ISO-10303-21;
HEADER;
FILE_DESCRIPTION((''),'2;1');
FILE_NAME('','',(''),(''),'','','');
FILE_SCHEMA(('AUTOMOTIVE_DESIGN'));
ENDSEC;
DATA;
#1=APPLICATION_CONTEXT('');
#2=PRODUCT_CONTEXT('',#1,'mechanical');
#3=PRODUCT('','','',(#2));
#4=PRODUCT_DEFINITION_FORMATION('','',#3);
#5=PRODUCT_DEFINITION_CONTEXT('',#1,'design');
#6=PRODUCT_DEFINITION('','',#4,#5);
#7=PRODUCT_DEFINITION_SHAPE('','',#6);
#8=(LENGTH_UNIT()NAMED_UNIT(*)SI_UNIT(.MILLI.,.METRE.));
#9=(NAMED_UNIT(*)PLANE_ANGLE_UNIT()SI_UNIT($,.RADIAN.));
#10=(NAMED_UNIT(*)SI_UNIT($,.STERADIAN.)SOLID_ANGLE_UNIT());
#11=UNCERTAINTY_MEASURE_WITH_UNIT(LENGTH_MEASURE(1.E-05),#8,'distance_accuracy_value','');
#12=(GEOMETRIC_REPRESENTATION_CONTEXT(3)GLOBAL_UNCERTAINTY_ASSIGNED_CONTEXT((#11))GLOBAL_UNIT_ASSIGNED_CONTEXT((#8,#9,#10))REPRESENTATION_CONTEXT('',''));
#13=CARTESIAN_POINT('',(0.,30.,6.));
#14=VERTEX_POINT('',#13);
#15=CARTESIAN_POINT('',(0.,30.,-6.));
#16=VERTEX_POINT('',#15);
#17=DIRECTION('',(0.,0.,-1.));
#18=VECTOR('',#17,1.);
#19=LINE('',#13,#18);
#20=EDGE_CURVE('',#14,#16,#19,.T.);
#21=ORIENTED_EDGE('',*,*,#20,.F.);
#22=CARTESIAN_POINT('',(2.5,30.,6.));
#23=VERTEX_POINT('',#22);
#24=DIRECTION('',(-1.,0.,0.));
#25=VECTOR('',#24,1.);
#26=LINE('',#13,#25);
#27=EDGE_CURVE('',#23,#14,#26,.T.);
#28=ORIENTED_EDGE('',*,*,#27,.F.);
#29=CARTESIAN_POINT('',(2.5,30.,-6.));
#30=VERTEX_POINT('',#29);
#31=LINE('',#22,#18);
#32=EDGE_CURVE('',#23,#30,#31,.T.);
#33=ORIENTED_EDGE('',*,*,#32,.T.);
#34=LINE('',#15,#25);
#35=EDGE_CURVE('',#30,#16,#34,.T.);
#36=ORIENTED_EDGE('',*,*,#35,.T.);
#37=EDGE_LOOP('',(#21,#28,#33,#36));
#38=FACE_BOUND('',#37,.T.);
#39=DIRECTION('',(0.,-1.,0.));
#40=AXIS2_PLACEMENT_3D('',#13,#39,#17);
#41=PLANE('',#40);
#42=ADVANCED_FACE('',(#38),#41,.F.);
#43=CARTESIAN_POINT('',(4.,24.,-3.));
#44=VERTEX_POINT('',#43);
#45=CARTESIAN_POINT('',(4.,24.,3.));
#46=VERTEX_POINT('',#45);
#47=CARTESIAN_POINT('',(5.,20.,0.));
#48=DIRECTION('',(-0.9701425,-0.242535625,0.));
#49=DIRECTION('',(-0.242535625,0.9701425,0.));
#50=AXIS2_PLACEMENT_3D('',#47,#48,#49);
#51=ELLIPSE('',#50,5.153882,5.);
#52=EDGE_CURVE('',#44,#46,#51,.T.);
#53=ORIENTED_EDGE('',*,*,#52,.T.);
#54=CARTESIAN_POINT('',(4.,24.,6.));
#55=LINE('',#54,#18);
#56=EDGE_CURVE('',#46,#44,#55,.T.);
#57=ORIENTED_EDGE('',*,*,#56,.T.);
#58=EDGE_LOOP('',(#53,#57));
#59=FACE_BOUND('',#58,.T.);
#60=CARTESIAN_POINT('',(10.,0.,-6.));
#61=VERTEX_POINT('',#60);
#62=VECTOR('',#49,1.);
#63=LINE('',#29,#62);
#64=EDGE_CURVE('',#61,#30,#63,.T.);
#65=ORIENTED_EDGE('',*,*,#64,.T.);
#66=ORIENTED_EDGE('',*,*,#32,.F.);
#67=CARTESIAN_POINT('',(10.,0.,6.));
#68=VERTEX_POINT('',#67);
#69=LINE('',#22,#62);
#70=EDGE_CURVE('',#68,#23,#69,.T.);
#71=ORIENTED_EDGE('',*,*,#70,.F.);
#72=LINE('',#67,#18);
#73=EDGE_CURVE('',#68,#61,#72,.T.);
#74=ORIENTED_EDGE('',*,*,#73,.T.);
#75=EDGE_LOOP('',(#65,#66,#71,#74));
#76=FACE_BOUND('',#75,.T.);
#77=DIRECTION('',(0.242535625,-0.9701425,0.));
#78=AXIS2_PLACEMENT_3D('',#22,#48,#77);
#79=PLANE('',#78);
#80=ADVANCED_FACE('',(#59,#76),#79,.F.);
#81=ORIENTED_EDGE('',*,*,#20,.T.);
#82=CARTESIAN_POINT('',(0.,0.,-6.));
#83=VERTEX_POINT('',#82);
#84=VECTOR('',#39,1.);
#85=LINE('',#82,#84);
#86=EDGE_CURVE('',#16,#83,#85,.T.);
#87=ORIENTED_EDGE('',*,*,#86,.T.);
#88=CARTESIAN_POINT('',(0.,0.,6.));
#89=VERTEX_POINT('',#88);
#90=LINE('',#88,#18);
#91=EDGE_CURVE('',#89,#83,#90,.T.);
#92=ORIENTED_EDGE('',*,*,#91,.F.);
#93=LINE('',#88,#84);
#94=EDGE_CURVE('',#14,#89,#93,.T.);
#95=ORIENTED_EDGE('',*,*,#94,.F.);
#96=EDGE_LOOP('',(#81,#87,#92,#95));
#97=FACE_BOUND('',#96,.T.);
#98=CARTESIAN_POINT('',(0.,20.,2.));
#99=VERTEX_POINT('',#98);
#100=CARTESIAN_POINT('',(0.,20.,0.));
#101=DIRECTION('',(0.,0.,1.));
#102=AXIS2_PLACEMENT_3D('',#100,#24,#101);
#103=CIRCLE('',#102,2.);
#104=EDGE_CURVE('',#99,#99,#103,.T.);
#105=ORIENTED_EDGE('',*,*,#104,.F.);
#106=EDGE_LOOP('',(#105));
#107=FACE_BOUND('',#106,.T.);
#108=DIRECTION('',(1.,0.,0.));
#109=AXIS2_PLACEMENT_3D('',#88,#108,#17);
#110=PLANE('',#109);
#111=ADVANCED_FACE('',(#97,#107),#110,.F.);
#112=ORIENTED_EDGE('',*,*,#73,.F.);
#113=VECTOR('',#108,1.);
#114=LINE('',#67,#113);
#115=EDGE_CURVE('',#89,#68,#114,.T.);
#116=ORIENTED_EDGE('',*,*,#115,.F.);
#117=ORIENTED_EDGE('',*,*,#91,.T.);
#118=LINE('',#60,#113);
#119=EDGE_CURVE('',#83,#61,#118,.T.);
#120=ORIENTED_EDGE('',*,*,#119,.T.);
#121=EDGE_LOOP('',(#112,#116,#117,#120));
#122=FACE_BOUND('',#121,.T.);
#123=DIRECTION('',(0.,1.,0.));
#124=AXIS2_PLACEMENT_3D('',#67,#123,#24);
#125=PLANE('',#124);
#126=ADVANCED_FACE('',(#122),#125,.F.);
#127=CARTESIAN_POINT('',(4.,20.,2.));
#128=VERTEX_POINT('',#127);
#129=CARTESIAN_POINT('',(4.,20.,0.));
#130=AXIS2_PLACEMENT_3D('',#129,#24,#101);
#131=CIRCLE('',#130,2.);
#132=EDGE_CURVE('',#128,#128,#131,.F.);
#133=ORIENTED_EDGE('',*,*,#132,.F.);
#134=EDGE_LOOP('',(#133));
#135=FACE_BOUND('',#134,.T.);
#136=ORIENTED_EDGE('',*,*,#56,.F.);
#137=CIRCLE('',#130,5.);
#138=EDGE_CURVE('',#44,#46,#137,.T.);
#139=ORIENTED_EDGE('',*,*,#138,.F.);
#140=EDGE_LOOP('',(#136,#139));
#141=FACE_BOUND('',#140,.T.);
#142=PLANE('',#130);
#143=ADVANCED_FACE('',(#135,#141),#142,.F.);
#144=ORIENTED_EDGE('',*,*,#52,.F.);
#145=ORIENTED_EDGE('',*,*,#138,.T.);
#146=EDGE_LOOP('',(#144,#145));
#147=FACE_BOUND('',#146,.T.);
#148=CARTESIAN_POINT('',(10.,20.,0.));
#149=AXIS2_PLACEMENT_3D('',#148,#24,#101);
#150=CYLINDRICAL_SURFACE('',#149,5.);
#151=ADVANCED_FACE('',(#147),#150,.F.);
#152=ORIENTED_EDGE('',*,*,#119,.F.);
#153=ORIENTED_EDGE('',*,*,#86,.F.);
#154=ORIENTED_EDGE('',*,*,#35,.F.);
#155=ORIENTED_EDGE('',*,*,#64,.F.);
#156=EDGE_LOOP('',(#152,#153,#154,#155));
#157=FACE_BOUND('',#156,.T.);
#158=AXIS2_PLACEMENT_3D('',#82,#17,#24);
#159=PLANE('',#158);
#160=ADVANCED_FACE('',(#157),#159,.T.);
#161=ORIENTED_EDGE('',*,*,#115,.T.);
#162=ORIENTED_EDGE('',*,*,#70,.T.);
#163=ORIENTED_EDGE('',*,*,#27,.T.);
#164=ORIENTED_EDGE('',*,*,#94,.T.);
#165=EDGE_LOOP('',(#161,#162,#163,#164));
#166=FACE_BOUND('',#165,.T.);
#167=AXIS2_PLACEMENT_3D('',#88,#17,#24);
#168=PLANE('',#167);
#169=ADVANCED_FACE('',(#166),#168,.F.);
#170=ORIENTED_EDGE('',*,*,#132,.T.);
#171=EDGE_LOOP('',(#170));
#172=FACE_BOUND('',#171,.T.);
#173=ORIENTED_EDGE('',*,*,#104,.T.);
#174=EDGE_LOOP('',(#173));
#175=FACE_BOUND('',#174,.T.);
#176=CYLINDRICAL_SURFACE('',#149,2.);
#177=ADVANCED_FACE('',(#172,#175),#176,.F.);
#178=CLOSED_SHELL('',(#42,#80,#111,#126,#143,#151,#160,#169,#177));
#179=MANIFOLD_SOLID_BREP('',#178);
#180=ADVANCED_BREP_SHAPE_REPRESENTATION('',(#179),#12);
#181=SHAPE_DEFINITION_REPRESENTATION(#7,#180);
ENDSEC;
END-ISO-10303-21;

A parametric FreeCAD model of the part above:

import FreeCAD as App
import Part
import Sketcher

doc = App.newDocument("Part")
params = doc.addObject("Spreadsheet::Sheet", "Params")
for row, (alias, value) in enumerate([
    ("sketch1_width", "10 mm"),
    ("sketch1_height", "30 mm"),
    ("sketch1_width2", "2.5 mm"),
    ("pad1_length", "12 mm"),
    ("sketch2_diameter", "4 mm"),
    ("sketch3_diameter", "10 mm"),
], start=1):
    params.set(f"A{row}", alias)
    params.set(f"B{row}", "=" + value)
    params.setAlias(f"B{row}", alias)

body = doc.addObject("PartDesign::Body", "Body")

sketch1 = body.newObject("Sketcher::SketchObject", "Sketch")
sketch1.AttachmentSupport = (doc.getObject("XY_Plane"), [""])
sketch1.MapMode = "FlatFace"
sketch1.addGeometry([
    Part.LineSegment(App.Vector(0, 30, 0), App.Vector(0, 0, 0)),
    Part.LineSegment(App.Vector(0, 0, 0), App.Vector(10, 0, 0)),
    Part.LineSegment(App.Vector(10, 0, 0), App.Vector(2.5, 30, 0)),
    Part.LineSegment(App.Vector(2.5, 30, 0), App.Vector(0, 30, 0)),
], False)
sketch1.addConstraint([
    Sketcher.Constraint("Coincident", 0, 2, 1, 1),
    Sketcher.Constraint("Coincident", 1, 2, 2, 1),
    Sketcher.Constraint("Coincident", 2, 2, 3, 1),
    Sketcher.Constraint("Coincident", 3, 2, 0, 1),
    Sketcher.Constraint("Vertical", 0),
    Sketcher.Constraint("Horizontal", 1),
    Sketcher.Constraint("Horizontal", 3),
    Sketcher.Constraint("Coincident", 0, 2, -1, 1),
    Sketcher.Constraint("DistanceX", 1, 1, 1, 2, 10.0),
    Sketcher.Constraint("DistanceY", 0, 2, 0, 1, 30.0),
    Sketcher.Constraint("DistanceX", 3, 2, 3, 1, 2.5),
])
sketch1.setExpression("Constraints[8]", "Params.sketch1_width")
sketch1.setExpression("Constraints[9]", "Params.sketch1_height")
sketch1.setExpression("Constraints[10]", "Params.sketch1_width2")
pad1 = body.newObject("PartDesign::Pad", "Pad")
pad1.Profile = sketch1
pad1.setExpression("Length", "Params.pad1_length")
pad1.Midplane = True

sketch2 = body.newObject("Sketcher::SketchObject", "Sketch001")
sketch2.AttachmentSupport = (doc.getObject("YZ_Plane"), [""])
sketch2.MapMode = "FlatFace"
sketch2.addGeometry(Part.Circle(App.Vector(20, 0, 0), App.Vector(0, 0, 1), 2), False)
sketch2.addConstraint([
    Sketcher.Constraint("PointOnObject", 0, 3, -1),
    Sketcher.Constraint("Diameter", 0, 4.0),
    Sketcher.Constraint("DistanceX", -1, 1, 0, 3, 20.0),
])
sketch2.setExpression("Constraints[1]", "Params.sketch2_diameter")
pocket1 = body.newObject("PartDesign::Pocket", "Pocket")
pocket1.Profile = sketch2
pocket1.Type = "ThroughAll"
pocket1.Reversed = True

sketch3 = body.newObject("Sketcher::SketchObject", "Sketch002")
sketch3.AttachmentSupport = (doc.getObject("YZ_Plane"), [""])
sketch3.MapMode = "FlatFace"
sketch3.AttachmentOffset = App.Placement(App.Vector(0, 0, 4), App.Rotation())
sketch3.addGeometry(Part.Circle(App.Vector(20, 0, 0), App.Vector(0, 0, 1), 5), False)
sketch3.addConstraint([
    Sketcher.Constraint("PointOnObject", 0, 3, -1),
    Sketcher.Constraint("Diameter", 0, 10.0),
    Sketcher.Constraint("DistanceX", -1, 1, 0, 3, 20.0),
])
sketch3.setExpression("Constraints[1]", "Params.sketch3_diameter")
pocket2 = body.newObject("PartDesign::Pocket", "Pocket001")
pocket2.Profile = sketch3
pocket2.Type = "ThroughAll"
pocket2.Reversed = True

doc.recompute()
